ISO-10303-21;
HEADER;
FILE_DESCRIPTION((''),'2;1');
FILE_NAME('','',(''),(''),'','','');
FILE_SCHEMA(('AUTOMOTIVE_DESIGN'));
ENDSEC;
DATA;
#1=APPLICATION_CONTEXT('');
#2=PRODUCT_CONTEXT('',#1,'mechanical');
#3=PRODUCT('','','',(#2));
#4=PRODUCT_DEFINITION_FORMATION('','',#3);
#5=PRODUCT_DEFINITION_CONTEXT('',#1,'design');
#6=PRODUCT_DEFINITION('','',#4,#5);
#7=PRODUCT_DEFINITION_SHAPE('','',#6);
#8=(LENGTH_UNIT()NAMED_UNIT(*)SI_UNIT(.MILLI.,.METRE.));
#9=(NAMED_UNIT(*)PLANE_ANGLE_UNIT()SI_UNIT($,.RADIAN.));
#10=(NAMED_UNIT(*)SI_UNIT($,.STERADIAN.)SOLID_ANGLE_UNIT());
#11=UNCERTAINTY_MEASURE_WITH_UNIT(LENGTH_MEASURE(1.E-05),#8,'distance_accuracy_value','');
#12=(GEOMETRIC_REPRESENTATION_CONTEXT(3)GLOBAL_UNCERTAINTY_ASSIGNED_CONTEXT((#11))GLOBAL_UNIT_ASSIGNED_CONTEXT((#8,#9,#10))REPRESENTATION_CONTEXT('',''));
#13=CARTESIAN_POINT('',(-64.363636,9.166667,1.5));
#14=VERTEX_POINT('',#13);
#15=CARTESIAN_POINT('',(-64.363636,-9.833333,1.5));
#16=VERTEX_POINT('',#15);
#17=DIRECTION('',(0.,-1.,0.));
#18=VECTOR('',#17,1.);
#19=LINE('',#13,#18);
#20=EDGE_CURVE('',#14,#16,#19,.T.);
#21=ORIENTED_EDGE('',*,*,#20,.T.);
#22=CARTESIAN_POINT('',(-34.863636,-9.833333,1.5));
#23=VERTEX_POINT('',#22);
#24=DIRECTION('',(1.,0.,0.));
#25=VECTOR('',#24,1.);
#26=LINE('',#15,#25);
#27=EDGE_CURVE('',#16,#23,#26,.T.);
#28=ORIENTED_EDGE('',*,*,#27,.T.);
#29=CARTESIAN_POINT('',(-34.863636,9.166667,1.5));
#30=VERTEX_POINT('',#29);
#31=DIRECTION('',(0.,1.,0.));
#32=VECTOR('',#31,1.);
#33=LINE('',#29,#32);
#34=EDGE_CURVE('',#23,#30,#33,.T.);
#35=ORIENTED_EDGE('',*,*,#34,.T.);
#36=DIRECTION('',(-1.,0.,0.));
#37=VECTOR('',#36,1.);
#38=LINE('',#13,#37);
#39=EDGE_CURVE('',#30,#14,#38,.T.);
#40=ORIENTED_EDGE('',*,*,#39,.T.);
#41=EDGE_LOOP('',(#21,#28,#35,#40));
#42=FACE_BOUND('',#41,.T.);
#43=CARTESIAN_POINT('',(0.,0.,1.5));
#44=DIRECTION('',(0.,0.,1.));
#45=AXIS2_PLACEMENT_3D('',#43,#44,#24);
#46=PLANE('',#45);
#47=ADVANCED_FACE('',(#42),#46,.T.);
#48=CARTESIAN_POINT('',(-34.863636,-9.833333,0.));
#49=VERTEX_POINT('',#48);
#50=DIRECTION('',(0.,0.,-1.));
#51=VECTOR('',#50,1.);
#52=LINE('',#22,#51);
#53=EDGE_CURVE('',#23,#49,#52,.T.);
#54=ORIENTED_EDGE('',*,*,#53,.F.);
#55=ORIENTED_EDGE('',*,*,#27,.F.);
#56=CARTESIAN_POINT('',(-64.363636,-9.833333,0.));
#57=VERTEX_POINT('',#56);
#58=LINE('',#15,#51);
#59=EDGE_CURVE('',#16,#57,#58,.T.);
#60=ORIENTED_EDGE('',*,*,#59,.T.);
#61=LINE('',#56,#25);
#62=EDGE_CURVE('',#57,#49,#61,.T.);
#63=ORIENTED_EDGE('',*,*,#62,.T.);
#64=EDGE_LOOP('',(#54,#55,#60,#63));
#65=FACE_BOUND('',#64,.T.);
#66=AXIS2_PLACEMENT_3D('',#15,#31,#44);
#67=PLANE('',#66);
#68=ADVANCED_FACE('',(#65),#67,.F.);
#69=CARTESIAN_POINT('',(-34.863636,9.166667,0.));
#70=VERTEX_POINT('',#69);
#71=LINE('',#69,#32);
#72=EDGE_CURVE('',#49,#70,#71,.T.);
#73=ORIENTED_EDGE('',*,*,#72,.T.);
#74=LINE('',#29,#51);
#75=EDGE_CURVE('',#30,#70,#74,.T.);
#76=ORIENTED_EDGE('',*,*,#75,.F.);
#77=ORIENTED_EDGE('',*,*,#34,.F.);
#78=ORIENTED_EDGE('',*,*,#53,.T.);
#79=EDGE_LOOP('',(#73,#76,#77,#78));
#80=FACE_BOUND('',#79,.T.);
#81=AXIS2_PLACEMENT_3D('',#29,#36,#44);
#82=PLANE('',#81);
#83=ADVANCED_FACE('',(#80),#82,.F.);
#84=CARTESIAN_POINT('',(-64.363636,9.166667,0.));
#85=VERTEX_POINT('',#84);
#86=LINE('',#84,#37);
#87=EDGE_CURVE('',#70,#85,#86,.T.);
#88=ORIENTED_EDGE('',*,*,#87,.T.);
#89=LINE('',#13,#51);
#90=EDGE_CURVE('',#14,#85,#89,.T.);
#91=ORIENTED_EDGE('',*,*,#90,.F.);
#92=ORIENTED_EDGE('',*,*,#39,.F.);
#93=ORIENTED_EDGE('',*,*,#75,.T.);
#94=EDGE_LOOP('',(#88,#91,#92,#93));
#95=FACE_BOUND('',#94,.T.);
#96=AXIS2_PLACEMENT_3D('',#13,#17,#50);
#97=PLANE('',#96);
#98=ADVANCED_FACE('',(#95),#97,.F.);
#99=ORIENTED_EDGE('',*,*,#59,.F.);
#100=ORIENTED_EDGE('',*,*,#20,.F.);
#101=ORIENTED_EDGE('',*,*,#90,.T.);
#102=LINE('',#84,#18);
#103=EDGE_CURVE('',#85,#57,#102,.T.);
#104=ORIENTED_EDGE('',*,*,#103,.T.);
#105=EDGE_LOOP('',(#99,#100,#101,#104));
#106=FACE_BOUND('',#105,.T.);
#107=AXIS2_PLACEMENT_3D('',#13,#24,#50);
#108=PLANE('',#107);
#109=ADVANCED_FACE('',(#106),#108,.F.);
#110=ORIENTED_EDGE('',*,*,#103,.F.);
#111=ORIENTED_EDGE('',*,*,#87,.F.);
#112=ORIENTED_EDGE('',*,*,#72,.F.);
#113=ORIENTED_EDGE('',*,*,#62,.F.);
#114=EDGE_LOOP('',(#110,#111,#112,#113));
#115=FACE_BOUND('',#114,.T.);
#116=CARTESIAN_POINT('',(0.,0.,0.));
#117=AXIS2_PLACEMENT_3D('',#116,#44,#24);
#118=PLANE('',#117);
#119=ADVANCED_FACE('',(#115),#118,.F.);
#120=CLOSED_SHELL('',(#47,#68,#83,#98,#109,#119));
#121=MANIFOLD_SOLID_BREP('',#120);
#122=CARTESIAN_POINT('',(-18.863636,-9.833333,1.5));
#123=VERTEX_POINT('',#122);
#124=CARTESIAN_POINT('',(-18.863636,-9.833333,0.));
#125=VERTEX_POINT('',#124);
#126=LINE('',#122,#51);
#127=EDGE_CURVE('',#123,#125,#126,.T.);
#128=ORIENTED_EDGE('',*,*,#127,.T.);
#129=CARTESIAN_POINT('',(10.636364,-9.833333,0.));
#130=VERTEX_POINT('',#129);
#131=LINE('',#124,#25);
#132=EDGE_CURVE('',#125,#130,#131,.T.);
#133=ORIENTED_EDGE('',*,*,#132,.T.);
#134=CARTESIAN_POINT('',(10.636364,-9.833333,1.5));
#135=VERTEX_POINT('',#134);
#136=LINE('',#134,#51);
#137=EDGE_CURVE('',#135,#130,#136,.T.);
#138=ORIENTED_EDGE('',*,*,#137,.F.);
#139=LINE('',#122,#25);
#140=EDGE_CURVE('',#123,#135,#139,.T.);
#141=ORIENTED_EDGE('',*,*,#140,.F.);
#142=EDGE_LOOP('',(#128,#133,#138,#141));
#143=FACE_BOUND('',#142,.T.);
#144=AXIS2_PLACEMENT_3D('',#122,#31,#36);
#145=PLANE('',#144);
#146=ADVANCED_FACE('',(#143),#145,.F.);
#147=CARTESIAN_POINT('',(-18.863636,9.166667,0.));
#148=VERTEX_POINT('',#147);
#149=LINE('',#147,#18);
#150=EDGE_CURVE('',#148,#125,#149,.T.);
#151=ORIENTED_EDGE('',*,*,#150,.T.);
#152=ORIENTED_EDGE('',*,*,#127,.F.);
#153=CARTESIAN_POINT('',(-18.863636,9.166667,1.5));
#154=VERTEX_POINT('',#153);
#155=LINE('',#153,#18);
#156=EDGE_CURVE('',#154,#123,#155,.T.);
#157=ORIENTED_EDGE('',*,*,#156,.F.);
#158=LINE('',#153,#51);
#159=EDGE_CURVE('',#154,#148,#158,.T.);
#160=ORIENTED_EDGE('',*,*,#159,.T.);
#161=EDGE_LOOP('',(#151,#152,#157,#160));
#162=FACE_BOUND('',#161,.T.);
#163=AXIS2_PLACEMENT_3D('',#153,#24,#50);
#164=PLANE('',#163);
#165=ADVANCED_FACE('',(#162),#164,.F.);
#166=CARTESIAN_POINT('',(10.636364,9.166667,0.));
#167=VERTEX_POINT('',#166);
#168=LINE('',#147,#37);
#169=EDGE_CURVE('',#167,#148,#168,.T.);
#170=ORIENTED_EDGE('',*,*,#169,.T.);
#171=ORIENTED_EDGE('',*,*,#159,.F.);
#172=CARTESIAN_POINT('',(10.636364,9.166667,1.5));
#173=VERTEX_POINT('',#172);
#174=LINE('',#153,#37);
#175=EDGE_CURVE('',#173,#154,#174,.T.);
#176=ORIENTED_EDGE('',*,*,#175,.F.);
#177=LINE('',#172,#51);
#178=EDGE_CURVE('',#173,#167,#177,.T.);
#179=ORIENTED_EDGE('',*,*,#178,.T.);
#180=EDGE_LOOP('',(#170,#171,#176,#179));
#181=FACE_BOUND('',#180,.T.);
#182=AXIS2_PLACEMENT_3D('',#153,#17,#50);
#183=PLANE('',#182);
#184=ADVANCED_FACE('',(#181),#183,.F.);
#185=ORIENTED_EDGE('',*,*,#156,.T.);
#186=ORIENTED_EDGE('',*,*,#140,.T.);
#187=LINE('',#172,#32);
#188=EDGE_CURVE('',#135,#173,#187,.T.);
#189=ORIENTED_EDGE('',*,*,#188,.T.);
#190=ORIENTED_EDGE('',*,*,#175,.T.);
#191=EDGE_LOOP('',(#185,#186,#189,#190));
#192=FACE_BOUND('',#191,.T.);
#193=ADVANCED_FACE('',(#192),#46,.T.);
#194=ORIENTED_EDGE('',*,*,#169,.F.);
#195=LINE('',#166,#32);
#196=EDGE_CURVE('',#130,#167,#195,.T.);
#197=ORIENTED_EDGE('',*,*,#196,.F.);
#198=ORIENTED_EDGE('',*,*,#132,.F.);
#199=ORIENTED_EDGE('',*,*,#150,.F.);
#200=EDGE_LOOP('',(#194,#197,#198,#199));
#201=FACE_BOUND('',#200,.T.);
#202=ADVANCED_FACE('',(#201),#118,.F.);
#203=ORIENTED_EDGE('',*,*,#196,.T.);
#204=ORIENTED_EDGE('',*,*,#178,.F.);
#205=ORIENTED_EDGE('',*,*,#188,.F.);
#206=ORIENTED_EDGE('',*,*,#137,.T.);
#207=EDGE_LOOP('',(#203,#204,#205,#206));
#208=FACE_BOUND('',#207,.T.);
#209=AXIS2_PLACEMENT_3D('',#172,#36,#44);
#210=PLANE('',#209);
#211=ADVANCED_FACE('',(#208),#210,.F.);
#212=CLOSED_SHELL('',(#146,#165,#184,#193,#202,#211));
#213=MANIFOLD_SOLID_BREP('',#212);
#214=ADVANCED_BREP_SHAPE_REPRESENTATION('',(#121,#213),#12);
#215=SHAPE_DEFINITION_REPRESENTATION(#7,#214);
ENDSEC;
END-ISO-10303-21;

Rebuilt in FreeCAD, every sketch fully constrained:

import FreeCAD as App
import Part
import Sketcher
from FreeCAD import Vector


def add_polygon(sketch, points):
    """Adds a closed chain of lines whose ends are joined by coincident constraints."""
    first, n = sketch.GeometryCount, len(points)
    for a, b in zip(points, points[1:] + points[:1]):
        sketch.addGeometry(Part.LineSegment(App.Vector(*a, 0), App.Vector(*b, 0)), False)
    for i in range(n):
        sketch.addConstraint(Sketcher.Constraint("Coincident", first + i, 2, first + (i + 1) % n, 1))

doc = App.newDocument("Part")
params = doc.addObject("Spreadsheet::Sheet", "Params")
for row, (alias, value) in enumerate([
    ("sketch1_height", "19 mm"),
    ("sketch1_width", "29.5 mm"),
    ("pad1_length", "1.5 mm"),
    ("sketch2_height", "19 mm"),
    ("sketch2_width", "29.5 mm"),
    ("pad2_length", "1.5 mm"),
], start=1):
    params.set(f"A{row}", alias)
    params.set(f"B{row}", "=" + value)
    params.setAlias(f"B{row}", alias)

body = doc.addObject("PartDesign::Body", "Body")

sketch1 = body.newObject("Sketcher::SketchObject", "Sketch")
sketch1.AttachmentSupport = (doc.getObject("XY_Plane"), [""])
sketch1.MapMode = "FlatFace"
add_polygon(sketch1, [(-64, 9), (-64, -10), (-35, -10), (-35, 9)])
sketch1.addConstraint([
    Sketcher.Constraint("Vertical", 0),
    Sketcher.Constraint("Horizontal", 1),
    Sketcher.Constraint("Vertical", 2),
    Sketcher.Constraint("Horizontal", 3),
    Sketcher.Constraint("DistanceY", 0, 2, 0, 1, 19.0),
    Sketcher.Constraint("DistanceX", 1, 1, 1, 2, 29.5),
    Sketcher.Constraint("DistanceX", 0, 2, -1, 1, 64.363636),
    Sketcher.Constraint("DistanceY", 0, 2, -1, 1, 9.833333),
])
sketch1.setExpression("Constraints[8]", "Params.sketch1_height")
sketch1.setExpression("Constraints[9]", "Params.sketch1_width")
pad1 = body.newObject("PartDesign::Pad", "Pad")
pad1.Profile = sketch1
pad1.setExpression("Length", "Params.pad1_length")
body2 = doc.addObject("PartDesign::Body", "Body001")

sketch2 = body2.newObject("Sketcher::SketchObject", "Sketch001")
sketch2.AttachmentSupport = (doc.getObject("XY_Plane001"), [""])
sketch2.MapMode = "FlatFace"
add_polygon(sketch2, [(-19, 9), (-19, -10), (11, -10), (11, 9)])
sketch2.addConstraint([
    Sketcher.Constraint("Vertical", 0),
    Sketcher.Constraint("Horizontal", 1),
    Sketcher.Constraint("Vertical", 2),
    Sketcher.Constraint("Horizontal", 3),
    Sketcher.Constraint("DistanceY", 0, 2, 0, 1, 19.0),
    Sketcher.Constraint("DistanceX", 1, 1, 1, 2, 29.5),
    Sketcher.Constraint("DistanceX", 0, 2, -1, 1, 18.863636),
    Sketcher.Constraint("DistanceY", 0, 2, -1, 1, 9.833333),
])
sketch2.setExpression("Constraints[8]", "Params.sketch2_height")
sketch2.setExpression("Constraints[9]", "Params.sketch2_width")
pad2 = body2.newObject("PartDesign::Pad", "Pad001")
pad2.Profile = sketch2
pad2.setExpression("Length", "Params.pad2_length")

doc.recompute()
